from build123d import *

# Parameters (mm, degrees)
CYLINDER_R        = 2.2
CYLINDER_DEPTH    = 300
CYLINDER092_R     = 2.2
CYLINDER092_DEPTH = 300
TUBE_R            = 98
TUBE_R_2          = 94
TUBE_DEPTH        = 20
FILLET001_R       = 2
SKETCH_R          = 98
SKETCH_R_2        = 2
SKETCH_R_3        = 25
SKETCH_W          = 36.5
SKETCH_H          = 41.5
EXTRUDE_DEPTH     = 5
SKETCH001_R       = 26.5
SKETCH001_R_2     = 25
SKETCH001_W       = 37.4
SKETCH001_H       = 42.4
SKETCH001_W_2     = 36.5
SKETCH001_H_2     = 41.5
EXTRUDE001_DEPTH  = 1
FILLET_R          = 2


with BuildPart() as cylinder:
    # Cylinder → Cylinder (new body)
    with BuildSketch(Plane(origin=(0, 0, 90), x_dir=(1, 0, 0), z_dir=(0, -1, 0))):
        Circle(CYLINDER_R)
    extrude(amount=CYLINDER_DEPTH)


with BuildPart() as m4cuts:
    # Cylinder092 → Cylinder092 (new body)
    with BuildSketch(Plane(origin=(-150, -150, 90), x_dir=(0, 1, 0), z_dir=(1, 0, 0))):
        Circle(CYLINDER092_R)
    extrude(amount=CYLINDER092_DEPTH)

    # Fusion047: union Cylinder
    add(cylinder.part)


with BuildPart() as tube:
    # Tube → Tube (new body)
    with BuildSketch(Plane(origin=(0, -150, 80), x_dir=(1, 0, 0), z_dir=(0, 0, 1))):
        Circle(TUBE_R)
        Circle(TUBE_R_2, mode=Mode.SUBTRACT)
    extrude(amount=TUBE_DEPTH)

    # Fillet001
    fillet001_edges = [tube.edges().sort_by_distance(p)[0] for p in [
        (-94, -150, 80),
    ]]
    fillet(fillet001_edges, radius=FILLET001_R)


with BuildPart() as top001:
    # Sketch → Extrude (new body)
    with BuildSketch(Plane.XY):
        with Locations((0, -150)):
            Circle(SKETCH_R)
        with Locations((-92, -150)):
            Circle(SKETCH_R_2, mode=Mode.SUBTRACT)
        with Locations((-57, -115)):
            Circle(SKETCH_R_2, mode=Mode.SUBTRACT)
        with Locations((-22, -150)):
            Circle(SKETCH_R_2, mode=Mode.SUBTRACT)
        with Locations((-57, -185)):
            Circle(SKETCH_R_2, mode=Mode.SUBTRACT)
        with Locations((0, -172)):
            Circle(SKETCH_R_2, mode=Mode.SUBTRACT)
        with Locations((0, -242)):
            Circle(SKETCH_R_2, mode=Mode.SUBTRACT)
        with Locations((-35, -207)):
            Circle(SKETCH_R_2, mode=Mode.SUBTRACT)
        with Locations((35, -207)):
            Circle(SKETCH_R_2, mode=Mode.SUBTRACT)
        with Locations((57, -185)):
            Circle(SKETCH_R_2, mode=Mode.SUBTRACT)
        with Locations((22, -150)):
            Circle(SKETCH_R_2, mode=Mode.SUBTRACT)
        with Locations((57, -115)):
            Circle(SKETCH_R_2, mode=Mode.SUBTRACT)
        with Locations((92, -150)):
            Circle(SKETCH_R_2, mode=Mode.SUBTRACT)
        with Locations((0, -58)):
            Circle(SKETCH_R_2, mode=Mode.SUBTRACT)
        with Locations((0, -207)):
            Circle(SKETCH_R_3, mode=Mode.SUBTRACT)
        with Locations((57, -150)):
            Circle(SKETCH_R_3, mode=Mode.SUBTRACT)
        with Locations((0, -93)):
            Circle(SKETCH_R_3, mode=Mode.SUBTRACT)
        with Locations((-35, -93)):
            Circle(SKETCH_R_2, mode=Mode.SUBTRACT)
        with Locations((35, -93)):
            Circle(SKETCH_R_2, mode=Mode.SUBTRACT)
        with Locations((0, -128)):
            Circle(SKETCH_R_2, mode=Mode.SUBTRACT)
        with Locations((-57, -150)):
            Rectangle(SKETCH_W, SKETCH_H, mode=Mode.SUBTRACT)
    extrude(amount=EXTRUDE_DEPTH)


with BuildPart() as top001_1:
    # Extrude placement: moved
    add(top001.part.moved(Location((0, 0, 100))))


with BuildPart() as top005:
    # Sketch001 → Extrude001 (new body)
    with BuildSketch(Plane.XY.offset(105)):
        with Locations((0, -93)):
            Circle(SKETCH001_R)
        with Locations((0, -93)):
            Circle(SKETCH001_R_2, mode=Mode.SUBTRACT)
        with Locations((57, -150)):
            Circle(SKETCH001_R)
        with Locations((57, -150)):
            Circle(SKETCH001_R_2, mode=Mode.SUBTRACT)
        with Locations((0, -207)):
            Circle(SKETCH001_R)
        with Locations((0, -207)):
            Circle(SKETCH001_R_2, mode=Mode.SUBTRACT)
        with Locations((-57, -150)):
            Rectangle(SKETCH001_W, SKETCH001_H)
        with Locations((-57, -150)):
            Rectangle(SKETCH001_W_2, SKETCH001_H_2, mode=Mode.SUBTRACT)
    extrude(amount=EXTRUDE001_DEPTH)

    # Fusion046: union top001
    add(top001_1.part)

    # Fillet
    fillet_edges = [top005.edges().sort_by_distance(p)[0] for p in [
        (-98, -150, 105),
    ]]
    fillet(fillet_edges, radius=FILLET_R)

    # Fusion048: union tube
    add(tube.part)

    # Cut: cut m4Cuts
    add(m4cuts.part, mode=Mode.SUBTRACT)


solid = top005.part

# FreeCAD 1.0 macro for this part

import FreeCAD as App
import Part
import Sketcher
from FreeCAD import Vector
Q = App.Units.Quantity


def edges_at(feature, points):
    """Names of the edges that pass closest to the given points."""
    edges = feature.Shape.Edges
    near = lambda p: min(range(len(edges)), key=lambda i: edges[i].distToShape(Part.Vertex(*p))[0])
    return sorted({f"Edge{near(p) + 1}" for p in points})


def add_polygon(sketch, points):
    """Adds a closed chain of lines whose ends are joined by coincident constraints."""
    first, n = sketch.GeometryCount, len(points)
    for a, b in zip(points, points[1:] + points[:1]):
        sketch.addGeometry(Part.LineSegment(App.Vector(*a, 0), App.Vector(*b, 0)), False)
    for i in range(n):
        sketch.addConstraint(Sketcher.Constraint("Coincident", first + i, 2, first + (i + 1) % n, 1))

doc = App.newDocument("Part")
body = doc.addObject("PartDesign::Body", "Body")

# Sketch on XZ plane
sketch1 = body.newObject("Sketcher::SketchObject", "Sketch")
sketch1.AttachmentSupport = (doc.getObject("XZ_Plane"), [""])
sketch1.MapMode = "FlatFace"
sketch1.addGeometry(Part.Circle(Vector(0, 90, 0), Vector(0, 0, 1), 2.2), False)
sketch1.addConstraint(Sketcher.Constraint("PointOnObject", 0, 3, -2))
sketch1.addConstraint(Sketcher.Constraint("Diameter", 0, Q("4.4 mm")))
sketch1.addConstraint(Sketcher.Constraint("DistanceY", -1, 1, 0, 3, Q("90 mm")))
pad1 = body.newObject("PartDesign::Pad", "Pad")
pad1.Profile = sketch1
pad1.Length = 300
body2 = doc.addObject("PartDesign::Body", "Body001")

# Sketch on YZ plane
sketch2 = body2.newObject("Sketcher::SketchObject", "Sketch001")
sketch2.AttachmentSupport = (doc.getObject("YZ_Plane001"), [""])
sketch2.MapMode = "FlatFace"
sketch2.AttachmentOffset = App.Placement(Vector(0, 0, -150), App.Rotation())
sketch2.addGeometry(Part.Circle(Vector(-150, 90, 0), Vector(0, 0, 1), 2.2), False)
sketch2.addConstraint(Sketcher.Constraint("Diameter", 0, Q("4.4 mm")))
sketch2.addConstraint(Sketcher.Constraint("DistanceX", 0, 3, -1, 1, Q("150 mm")))
sketch2.addConstraint(Sketcher.Constraint("DistanceY", -1, 1, 0, 3, Q("90 mm")))
pad2 = body2.newObject("PartDesign::Pad", "Pad001")
pad2.Profile = sketch2
pad2.Length = 300
doc.recompute()

boolean = body2.newObject("PartDesign::Boolean", "Boolean")
boolean.Type = "Fuse"
boolean.addObjects([body])
body3 = doc.addObject("PartDesign::Body", "Body002")

# Sketch on XY plane
sketch3 = body3.newObject("Sketcher::SketchObject", "Sketch002")
sketch3.AttachmentSupport = (doc.getObject("XY_Plane002"), [""])
sketch3.MapMode = "FlatFace"
sketch3.AttachmentOffset = App.Placement(Vector(0, 0, 80), App.Rotation())
sketch3.addGeometry(Part.Circle(Vector(0, -150, 0), Vector(0, 0, 1), 98), False)
sketch3.addGeometry(Part.Circle(Vector(0, -150, 0), Vector(0, 0, 1), 94), False)
sketch3.addConstraint(Sketcher.Constraint("Coincident", 1, 3, 0, 3))
sketch3.addConstraint(Sketcher.Constraint("PointOnObject", 0, 3, -2))
sketch3.addConstraint(Sketcher.Constraint("Diameter", 0, Q("196 mm")))
sketch3.addConstraint(Sketcher.Constraint("Diameter", 1, Q("188 mm")))
sketch3.addConstraint(Sketcher.Constraint("DistanceY", 0, 3, -1, 1, Q("150 mm")))
pad3 = body3.newObject("PartDesign::Pad", "Pad002")
pad3.Profile = sketch3
pad3.Length = 20
doc.recompute()

fillet = body3.newObject("PartDesign::Fillet", "Fillet")
fillet.Base = (pad3, edges_at(pad3, [(-94, -150, 80)]))
fillet.Radius = 2
body4 = doc.addObject("PartDesign::Body", "Body003")

# Sketch on XY plane
sketch4 = body4.newObject("Sketcher::SketchObject", "Sketch003")
sketch4.AttachmentSupport = (doc.getObject("XY_Plane003"), [""])
sketch4.MapMode = "FlatFace"
sketch4.addGeometry(Part.Circle(Vector(0, -150, 0), Vector(0, 0, 1), 98), False)  # 0
sketch4.addGeometry(Part.Circle(Vector(-35, -207, 0), Vector(0, 0, 1), 2), False)  # 1
sketch4.addGeometry(Part.Circle(Vector(-57, -185, 0), Vector(0, 0, 1), 2), False)  # 2
sketch4.addGeometry(Part.Circle(Vector(0, -242, 0), Vector(0, 0, 1), 2), False)  # 3
sketch4.addGeometry(Part.Circle(Vector(0, -207, 0), Vector(0, 0, 1), 25), False)  # 4
sketch4.addGeometry(Part.Circle(Vector(35, -207, 0), Vector(0, 0, 1), 2), False)  # 5
sketch4.addGeometry(Part.Circle(Vector(0, -172, 0), Vector(0, 0, 1), 2), False)  # 6
sketch4.addGeometry(Part.Circle(Vector(57, -185, 0), Vector(0, 0, 1), 2), False)  # 7
sketch4.addGeometry(Part.Circle(Vector(-92, -150, 0), Vector(0, 0, 1), 2), False)  # 8
add_polygon(sketch4, [(-38.8, -170.8), (-75.2, -170.8), (-75.2, -129.2), (-38.8, -129.2)])  # lines 9-12
sketch4.addGeometry(Part.Circle(Vector(-57, -115, 0), Vector(0, 0, 1), 2), False)  # 13
sketch4.addGeometry(Part.Circle(Vector(-22, -150, 0), Vector(0, 0, 1), 2), False)  # 14
sketch4.addGeometry(Part.Circle(Vector(-35, -93, 0), Vector(0, 0, 1), 2), False)  # 15
sketch4.addGeometry(Part.Circle(Vector(22, -150, 0), Vector(0, 0, 1), 2), False)  # 16
sketch4.addGeometry(Part.Circle(Vector(0, -128, 0), Vector(0, 0, 1), 2), False)  # 17
sketch4.addGeometry(Part.Circle(Vector(57, -150, 0), Vector(0, 0, 1), 25), False)  # 18
sketch4.addGeometry(Part.Circle(Vector(92, -150, 0), Vector(0, 0, 1), 2), False)  # 19
sketch4.addGeometry(Part.Circle(Vector(57, -115, 0), Vector(0, 0, 1), 2), False)  # 20
sketch4.addGeometry(Part.Circle(Vector(0, -93, 0), Vector(0, 0, 1), 25), False)  # 21
sketch4.addGeometry(Part.Circle(Vector(35, -93, 0), Vector(0, 0, 1), 2), False)  # 22
sketch4.addGeometry(Part.Circle(Vector(0, -58, 0), Vector(0, 0, 1), 2), False)  # 23
sketch4.addConstraint(Sketcher.Constraint("Horizontal", 9))
sketch4.addConstraint(Sketcher.Constraint("Vertical", 10))
sketch4.addConstraint(Sketcher.Constraint("Horizontal", 11))
sketch4.addConstraint(Sketcher.Constraint("Vertical", 12))
sketch4.addConstraint(Sketcher.Constraint("Equal", 1, 2))
sketch4.addConstraint(Sketcher.Constraint("Equal", 2, 3))
sketch4.addConstraint(Sketcher.Constraint("Equal", 3, 5))
sketch4.addConstraint(Sketcher.Constraint("Equal", 5, 6))
sketch4.addConstraint(Sketcher.Constraint("Equal", 6, 7))
sketch4.addConstraint(Sketcher.Constraint("Equal", 7, 8))
sketch4.addConstraint(Sketcher.Constraint("Equal", 8, 13))
sketch4.addConstraint(Sketcher.Constraint("Equal", 13, 14))
sketch4.addConstraint(Sketcher.Constraint("Equal", 14, 15))
sketch4.addConstraint(Sketcher.Constraint("Equal", 15, 16))
sketch4.addConstraint(Sketcher.Constraint("Equal", 16, 17))
sketch4.addConstraint(Sketcher.Constraint("Equal", 4, 18))
sketch4.addConstraint(Sketcher.Constraint("Equal", 17, 19))
sketch4.addConstraint(Sketcher.Constraint("Equal", 19, 20))
sketch4.addConstraint(Sketcher.Constraint("Equal", 18, 21))
sketch4.addConstraint(Sketcher.Constraint("Equal", 20, 22))
sketch4.addConstraint(Sketcher.Constraint("Equal", 22, 23))
sketch4.addConstraint(Sketcher.Constraint("Symmetric", 1, 3, 5, 3, -2))
sketch4.addConstraint(Sketcher.Constraint("Symmetric", 2, 3, 7, 3, -2))
sketch4.addConstraint(Sketcher.Constraint("Symmetric", 14, 3, 16, 3, -2))
sketch4.addConstraint(Sketcher.Constraint("Symmetric", 8, 3, 19, 3, -2))
sketch4.addConstraint(Sketcher.Constraint("Symmetric", 13, 3, 20, 3, -2))
sketch4.addConstraint(Sketcher.Constraint("Symmetric", 15, 3, 22, 3, -2))
sketch4.addConstraint(Sketcher.Constraint("PointOnObject", 0, 3, -2))
sketch4.addConstraint(Sketcher.Constraint("PointOnObject", 3, 3, -2))
sketch4.addConstraint(Sketcher.Constraint("PointOnObject", 4, 3, -2))
sketch4.addConstraint(Sketcher.Constraint("PointOnObject", 6, 3, -2))
sketch4.addConstraint(Sketcher.Constraint("PointOnObject", 17, 3, -2))
sketch4.addConstraint(Sketcher.Constraint("PointOnObject", 21, 3, -2))
sketch4.addConstraint(Sketcher.Constraint("PointOnObject", 23, 3, -2))
sketch4.addConstraint(Sketcher.Constraint("Horizontal", 1, 3, 4, 3))
sketch4.addConstraint(Sketcher.Constraint("Horizontal", 0, 3, 8, 3))
sketch4.addConstraint(Sketcher.Constraint("Horizontal", 8, 3, 14, 3))
sketch4.addConstraint(Sketcher.Constraint("Horizontal", 16, 3, 18, 3))
sketch4.addConstraint(Sketcher.Constraint("Horizontal", 15, 3, 21, 3))
sketch4.addConstraint(Sketcher.Constraint("Vertical", 2, 3, 13, 3))
sketch4.addConstraint(Sketcher.Constraint("Vertical", 1, 3, 15, 3))
sketch4.addConstraint(Sketcher.Constraint("Vertical", 7, 3, 18, 3))
sketch4.addConstraint(Sketcher.Constraint("Diameter", 0, Q("196 mm")))
sketch4.addConstraint(Sketcher.Constraint("Diameter", 1, Q("4 mm")))
sketch4.addConstraint(Sketcher.Constraint("Diameter", 4, Q("50 mm")))
sketch4.addConstraint(Sketcher.Constraint("DistanceX", 9, 2, 9, 1, Q("36.5 mm")))
sketch4.addConstraint(Sketcher.Constraint("DistanceY", 10, 1, 10, 2, Q("41.5 mm")))
sketch4.addConstraint(Sketcher.Constraint("DistanceY", 0, 3, -1, 1, Q("150 mm")))
sketch4.addConstraint(Sketcher.Constraint("DistanceX", 1, 3, -1, 1, Q("35 mm")))
sketch4.addConstraint(Sketcher.Constraint("DistanceY", 1, 3, -1, 1, Q("207 mm")))
sketch4.addConstraint(Sketcher.Constraint("DistanceX", 2, 3, -1, 1, Q("57 mm")))
sketch4.addConstraint(Sketcher.Constraint("DistanceY", 2, 3, -1, 1, Q("185 mm")))
sketch4.addConstraint(Sketcher.Constraint("DistanceY", 3, 3, -1, 1, Q("242 mm")))
sketch4.addConstraint(Sketcher.Constraint("DistanceY", 6, 3, -1, 1, Q("172 mm")))
sketch4.addConstraint(Sketcher.Constraint("DistanceX", 8, 3, -1, 1, Q("92 mm")))
sketch4.addConstraint(Sketcher.Constraint("DistanceY", 13, 3, -1, 1, Q("115 mm")))
sketch4.addConstraint(Sketcher.Constraint("DistanceX", 14, 3, -1, 1, Q("22 mm")))
sketch4.addConstraint(Sketcher.Constraint("DistanceY", 15, 3, -1, 1, Q("93 mm")))
sketch4.addConstraint(Sketcher.Constraint("DistanceY", 17, 3, -1, 1, Q("128 mm")))
sketch4.addConstraint(Sketcher.Constraint("DistanceY", 23, 3, -1, 1, Q("58 mm")))
sketch4.addConstraint(Sketcher.Constraint("DistanceX", 9, 2, -1, 1, Q("75.25 mm")))
sketch4.addConstraint(Sketcher.Constraint("DistanceY", 9, 2, -1, 1, Q("170.75 mm")))
pad4 = body4.newObject("PartDesign::Pad", "Pad003")
pad4.Profile = sketch4
pad4.Length = 5
body5 = doc.addObject("PartDesign::Body", "Body004")
doc.recompute()

body4.Placement = App.Placement(Vector(0, 0, 100), App.Rotation(Vector(0, 0, 1), 0))
boolean2 = body5.newObject("PartDesign::Boolean", "Boolean001")
boolean2.Type = "Fuse"
boolean2.addObjects([body4])
body6 = doc.addObject("PartDesign::Body", "Body005")
body6.AllowCompound = True

# Sketch on XY plane
sketch5 = body6.newObject("Sketcher::SketchObject", "Sketch004")
sketch5.AttachmentSupport = (doc.getObject("XY_Plane005"), [""])
sketch5.MapMode = "FlatFace"
sketch5.AttachmentOffset = App.Placement(Vector(0, 0, 105), App.Rotation())
sketch5.addGeometry(Part.Circle(Vector(0, -93, 0), Vector(0, 0, 1), 26), False)  # 0
sketch5.addGeometry(Part.Circle(Vector(0, -93, 0), Vector(0, 0, 1), 25), False)  # 1
sketch5.addGeometry(Part.Circle(Vector(57, -150, 0), Vector(0, 0, 1), 26), False)  # 2
sketch5.addGeometry(Part.Circle(Vector(57, -150, 0), Vector(0, 0, 1), 25), False)  # 3
sketch5.addGeometry(Part.Circle(Vector(0, -207, 0), Vector(0, 0, 1), 26), False)  # 4
sketch5.addGeometry(Part.Circle(Vector(0, -207, 0), Vector(0, 0, 1), 25), False)  # 5
add_polygon(sketch5, [(-76, -129), (-76, -171), (-38, -171), (-38, -129)])  # lines 6-9
add_polygon(sketch5, [(-39, -171), (-75, -171), (-75, -129), (-39, -129)])  # lines 10-13
sketch5.addConstraint(Sketcher.Constraint("Vertical", 6))
sketch5.addConstraint(Sketcher.Constraint("Horizontal", 7))
sketch5.addConstraint(Sketcher.Constraint("Vertical", 8))
sketch5.addConstraint(Sketcher.Constraint("Horizontal", 9))
sketch5.addConstraint(Sketcher.Constraint("Horizontal", 10))
sketch5.addConstraint(Sketcher.Constraint("Vertical", 11))
sketch5.addConstraint(Sketcher.Constraint("Horizontal", 12))
sketch5.addConstraint(Sketcher.Constraint("Vertical", 13))
sketch5.addConstraint(Sketcher.Constraint("Coincident", 1, 3, 0, 3))
sketch5.addConstraint(Sketcher.Constraint("Coincident", 3, 3, 2, 3))
sketch5.addConstraint(Sketcher.Constraint("Coincident", 5, 3, 4, 3))
sketch5.addConstraint(Sketcher.Constraint("Equal", 0, 2))
sketch5.addConstraint(Sketcher.Constraint("Equal", 1, 3))
sketch5.addConstraint(Sketcher.Constraint("Equal", 2, 4))
sketch5.addConstraint(Sketcher.Constraint("Equal", 3, 5))
sketch5.addConstraint(Sketcher.Constraint("PointOnObject", 0, 3, -2))
sketch5.addConstraint(Sketcher.Constraint("PointOnObject", 4, 3, -2))
sketch5.addConstraint(Sketcher.Constraint("Diameter", 0, Q("53 mm")))
sketch5.addConstraint(Sketcher.Constraint("Diameter", 1, Q("50 mm")))
sketch5.addConstraint(Sketcher.Constraint("DistanceX", 7, 1, 7, 2, Q("37.4 mm")))
sketch5.addConstraint(Sketcher.Constraint("DistanceX", 10, 2, 10, 1, Q("36.5 mm")))
sketch5.addConstraint(Sketcher.Constraint("DistanceY", 6, 2, 6, 1, Q("42.4 mm")))
sketch5.addConstraint(Sketcher.Constraint("DistanceY", 11, 1, 11, 2, Q("41.5 mm")))
sketch5.addConstraint(Sketcher.Constraint("DistanceY", 0, 3, -1, 1, Q("93 mm")))
sketch5.addConstraint(Sketcher.Constraint("DistanceX", -1, 1, 2, 3, Q("57 mm")))
sketch5.addConstraint(Sketcher.Constraint("DistanceY", 2, 3, -1, 1, Q("150 mm")))
sketch5.addConstraint(Sketcher.Constraint("DistanceY", 4, 3, -1, 1, Q("207 mm")))
sketch5.addConstraint(Sketcher.Constraint("DistanceX", 6, 2, -1, 1, Q("75.7 mm")))
sketch5.addConstraint(Sketcher.Constraint("DistanceY", 6, 2, -1, 1, Q("171.2 mm")))
sketch5.addConstraint(Sketcher.Constraint("DistanceX", 10, 2, -1, 1, Q("75.25 mm")))
sketch5.addConstraint(Sketcher.Constraint("DistanceY", 10, 2, -1, 1, Q("170.75 mm")))
pad5 = body6.newObject("PartDesign::Pad", "Pad004")
pad5.Profile = sketch5
pad5.Length = 1
doc.recompute()

boolean3 = body6.newObject("PartDesign::Boolean", "Boolean002")
boolean3.Type = "Fuse"
boolean3.addObjects([body5])
doc.recompute()

fillet2 = body6.newObject("PartDesign::Fillet", "Fillet001")
fillet2.Base = (boolean3, edges_at(boolean3, [(-98, -150, 105)]))
fillet2.Radius = 2
doc.recompute()

boolean4 = body6.newObject("PartDesign::Boolean", "Boolean003")
boolean4.Type = "Fuse"
boolean4.addObjects([body3])
doc.recompute()

boolean5 = body6.newObject("PartDesign::Boolean", "Boolean004")
boolean5.Type = "Cut"
boolean5.addObjects([body2])

doc.recompute()
